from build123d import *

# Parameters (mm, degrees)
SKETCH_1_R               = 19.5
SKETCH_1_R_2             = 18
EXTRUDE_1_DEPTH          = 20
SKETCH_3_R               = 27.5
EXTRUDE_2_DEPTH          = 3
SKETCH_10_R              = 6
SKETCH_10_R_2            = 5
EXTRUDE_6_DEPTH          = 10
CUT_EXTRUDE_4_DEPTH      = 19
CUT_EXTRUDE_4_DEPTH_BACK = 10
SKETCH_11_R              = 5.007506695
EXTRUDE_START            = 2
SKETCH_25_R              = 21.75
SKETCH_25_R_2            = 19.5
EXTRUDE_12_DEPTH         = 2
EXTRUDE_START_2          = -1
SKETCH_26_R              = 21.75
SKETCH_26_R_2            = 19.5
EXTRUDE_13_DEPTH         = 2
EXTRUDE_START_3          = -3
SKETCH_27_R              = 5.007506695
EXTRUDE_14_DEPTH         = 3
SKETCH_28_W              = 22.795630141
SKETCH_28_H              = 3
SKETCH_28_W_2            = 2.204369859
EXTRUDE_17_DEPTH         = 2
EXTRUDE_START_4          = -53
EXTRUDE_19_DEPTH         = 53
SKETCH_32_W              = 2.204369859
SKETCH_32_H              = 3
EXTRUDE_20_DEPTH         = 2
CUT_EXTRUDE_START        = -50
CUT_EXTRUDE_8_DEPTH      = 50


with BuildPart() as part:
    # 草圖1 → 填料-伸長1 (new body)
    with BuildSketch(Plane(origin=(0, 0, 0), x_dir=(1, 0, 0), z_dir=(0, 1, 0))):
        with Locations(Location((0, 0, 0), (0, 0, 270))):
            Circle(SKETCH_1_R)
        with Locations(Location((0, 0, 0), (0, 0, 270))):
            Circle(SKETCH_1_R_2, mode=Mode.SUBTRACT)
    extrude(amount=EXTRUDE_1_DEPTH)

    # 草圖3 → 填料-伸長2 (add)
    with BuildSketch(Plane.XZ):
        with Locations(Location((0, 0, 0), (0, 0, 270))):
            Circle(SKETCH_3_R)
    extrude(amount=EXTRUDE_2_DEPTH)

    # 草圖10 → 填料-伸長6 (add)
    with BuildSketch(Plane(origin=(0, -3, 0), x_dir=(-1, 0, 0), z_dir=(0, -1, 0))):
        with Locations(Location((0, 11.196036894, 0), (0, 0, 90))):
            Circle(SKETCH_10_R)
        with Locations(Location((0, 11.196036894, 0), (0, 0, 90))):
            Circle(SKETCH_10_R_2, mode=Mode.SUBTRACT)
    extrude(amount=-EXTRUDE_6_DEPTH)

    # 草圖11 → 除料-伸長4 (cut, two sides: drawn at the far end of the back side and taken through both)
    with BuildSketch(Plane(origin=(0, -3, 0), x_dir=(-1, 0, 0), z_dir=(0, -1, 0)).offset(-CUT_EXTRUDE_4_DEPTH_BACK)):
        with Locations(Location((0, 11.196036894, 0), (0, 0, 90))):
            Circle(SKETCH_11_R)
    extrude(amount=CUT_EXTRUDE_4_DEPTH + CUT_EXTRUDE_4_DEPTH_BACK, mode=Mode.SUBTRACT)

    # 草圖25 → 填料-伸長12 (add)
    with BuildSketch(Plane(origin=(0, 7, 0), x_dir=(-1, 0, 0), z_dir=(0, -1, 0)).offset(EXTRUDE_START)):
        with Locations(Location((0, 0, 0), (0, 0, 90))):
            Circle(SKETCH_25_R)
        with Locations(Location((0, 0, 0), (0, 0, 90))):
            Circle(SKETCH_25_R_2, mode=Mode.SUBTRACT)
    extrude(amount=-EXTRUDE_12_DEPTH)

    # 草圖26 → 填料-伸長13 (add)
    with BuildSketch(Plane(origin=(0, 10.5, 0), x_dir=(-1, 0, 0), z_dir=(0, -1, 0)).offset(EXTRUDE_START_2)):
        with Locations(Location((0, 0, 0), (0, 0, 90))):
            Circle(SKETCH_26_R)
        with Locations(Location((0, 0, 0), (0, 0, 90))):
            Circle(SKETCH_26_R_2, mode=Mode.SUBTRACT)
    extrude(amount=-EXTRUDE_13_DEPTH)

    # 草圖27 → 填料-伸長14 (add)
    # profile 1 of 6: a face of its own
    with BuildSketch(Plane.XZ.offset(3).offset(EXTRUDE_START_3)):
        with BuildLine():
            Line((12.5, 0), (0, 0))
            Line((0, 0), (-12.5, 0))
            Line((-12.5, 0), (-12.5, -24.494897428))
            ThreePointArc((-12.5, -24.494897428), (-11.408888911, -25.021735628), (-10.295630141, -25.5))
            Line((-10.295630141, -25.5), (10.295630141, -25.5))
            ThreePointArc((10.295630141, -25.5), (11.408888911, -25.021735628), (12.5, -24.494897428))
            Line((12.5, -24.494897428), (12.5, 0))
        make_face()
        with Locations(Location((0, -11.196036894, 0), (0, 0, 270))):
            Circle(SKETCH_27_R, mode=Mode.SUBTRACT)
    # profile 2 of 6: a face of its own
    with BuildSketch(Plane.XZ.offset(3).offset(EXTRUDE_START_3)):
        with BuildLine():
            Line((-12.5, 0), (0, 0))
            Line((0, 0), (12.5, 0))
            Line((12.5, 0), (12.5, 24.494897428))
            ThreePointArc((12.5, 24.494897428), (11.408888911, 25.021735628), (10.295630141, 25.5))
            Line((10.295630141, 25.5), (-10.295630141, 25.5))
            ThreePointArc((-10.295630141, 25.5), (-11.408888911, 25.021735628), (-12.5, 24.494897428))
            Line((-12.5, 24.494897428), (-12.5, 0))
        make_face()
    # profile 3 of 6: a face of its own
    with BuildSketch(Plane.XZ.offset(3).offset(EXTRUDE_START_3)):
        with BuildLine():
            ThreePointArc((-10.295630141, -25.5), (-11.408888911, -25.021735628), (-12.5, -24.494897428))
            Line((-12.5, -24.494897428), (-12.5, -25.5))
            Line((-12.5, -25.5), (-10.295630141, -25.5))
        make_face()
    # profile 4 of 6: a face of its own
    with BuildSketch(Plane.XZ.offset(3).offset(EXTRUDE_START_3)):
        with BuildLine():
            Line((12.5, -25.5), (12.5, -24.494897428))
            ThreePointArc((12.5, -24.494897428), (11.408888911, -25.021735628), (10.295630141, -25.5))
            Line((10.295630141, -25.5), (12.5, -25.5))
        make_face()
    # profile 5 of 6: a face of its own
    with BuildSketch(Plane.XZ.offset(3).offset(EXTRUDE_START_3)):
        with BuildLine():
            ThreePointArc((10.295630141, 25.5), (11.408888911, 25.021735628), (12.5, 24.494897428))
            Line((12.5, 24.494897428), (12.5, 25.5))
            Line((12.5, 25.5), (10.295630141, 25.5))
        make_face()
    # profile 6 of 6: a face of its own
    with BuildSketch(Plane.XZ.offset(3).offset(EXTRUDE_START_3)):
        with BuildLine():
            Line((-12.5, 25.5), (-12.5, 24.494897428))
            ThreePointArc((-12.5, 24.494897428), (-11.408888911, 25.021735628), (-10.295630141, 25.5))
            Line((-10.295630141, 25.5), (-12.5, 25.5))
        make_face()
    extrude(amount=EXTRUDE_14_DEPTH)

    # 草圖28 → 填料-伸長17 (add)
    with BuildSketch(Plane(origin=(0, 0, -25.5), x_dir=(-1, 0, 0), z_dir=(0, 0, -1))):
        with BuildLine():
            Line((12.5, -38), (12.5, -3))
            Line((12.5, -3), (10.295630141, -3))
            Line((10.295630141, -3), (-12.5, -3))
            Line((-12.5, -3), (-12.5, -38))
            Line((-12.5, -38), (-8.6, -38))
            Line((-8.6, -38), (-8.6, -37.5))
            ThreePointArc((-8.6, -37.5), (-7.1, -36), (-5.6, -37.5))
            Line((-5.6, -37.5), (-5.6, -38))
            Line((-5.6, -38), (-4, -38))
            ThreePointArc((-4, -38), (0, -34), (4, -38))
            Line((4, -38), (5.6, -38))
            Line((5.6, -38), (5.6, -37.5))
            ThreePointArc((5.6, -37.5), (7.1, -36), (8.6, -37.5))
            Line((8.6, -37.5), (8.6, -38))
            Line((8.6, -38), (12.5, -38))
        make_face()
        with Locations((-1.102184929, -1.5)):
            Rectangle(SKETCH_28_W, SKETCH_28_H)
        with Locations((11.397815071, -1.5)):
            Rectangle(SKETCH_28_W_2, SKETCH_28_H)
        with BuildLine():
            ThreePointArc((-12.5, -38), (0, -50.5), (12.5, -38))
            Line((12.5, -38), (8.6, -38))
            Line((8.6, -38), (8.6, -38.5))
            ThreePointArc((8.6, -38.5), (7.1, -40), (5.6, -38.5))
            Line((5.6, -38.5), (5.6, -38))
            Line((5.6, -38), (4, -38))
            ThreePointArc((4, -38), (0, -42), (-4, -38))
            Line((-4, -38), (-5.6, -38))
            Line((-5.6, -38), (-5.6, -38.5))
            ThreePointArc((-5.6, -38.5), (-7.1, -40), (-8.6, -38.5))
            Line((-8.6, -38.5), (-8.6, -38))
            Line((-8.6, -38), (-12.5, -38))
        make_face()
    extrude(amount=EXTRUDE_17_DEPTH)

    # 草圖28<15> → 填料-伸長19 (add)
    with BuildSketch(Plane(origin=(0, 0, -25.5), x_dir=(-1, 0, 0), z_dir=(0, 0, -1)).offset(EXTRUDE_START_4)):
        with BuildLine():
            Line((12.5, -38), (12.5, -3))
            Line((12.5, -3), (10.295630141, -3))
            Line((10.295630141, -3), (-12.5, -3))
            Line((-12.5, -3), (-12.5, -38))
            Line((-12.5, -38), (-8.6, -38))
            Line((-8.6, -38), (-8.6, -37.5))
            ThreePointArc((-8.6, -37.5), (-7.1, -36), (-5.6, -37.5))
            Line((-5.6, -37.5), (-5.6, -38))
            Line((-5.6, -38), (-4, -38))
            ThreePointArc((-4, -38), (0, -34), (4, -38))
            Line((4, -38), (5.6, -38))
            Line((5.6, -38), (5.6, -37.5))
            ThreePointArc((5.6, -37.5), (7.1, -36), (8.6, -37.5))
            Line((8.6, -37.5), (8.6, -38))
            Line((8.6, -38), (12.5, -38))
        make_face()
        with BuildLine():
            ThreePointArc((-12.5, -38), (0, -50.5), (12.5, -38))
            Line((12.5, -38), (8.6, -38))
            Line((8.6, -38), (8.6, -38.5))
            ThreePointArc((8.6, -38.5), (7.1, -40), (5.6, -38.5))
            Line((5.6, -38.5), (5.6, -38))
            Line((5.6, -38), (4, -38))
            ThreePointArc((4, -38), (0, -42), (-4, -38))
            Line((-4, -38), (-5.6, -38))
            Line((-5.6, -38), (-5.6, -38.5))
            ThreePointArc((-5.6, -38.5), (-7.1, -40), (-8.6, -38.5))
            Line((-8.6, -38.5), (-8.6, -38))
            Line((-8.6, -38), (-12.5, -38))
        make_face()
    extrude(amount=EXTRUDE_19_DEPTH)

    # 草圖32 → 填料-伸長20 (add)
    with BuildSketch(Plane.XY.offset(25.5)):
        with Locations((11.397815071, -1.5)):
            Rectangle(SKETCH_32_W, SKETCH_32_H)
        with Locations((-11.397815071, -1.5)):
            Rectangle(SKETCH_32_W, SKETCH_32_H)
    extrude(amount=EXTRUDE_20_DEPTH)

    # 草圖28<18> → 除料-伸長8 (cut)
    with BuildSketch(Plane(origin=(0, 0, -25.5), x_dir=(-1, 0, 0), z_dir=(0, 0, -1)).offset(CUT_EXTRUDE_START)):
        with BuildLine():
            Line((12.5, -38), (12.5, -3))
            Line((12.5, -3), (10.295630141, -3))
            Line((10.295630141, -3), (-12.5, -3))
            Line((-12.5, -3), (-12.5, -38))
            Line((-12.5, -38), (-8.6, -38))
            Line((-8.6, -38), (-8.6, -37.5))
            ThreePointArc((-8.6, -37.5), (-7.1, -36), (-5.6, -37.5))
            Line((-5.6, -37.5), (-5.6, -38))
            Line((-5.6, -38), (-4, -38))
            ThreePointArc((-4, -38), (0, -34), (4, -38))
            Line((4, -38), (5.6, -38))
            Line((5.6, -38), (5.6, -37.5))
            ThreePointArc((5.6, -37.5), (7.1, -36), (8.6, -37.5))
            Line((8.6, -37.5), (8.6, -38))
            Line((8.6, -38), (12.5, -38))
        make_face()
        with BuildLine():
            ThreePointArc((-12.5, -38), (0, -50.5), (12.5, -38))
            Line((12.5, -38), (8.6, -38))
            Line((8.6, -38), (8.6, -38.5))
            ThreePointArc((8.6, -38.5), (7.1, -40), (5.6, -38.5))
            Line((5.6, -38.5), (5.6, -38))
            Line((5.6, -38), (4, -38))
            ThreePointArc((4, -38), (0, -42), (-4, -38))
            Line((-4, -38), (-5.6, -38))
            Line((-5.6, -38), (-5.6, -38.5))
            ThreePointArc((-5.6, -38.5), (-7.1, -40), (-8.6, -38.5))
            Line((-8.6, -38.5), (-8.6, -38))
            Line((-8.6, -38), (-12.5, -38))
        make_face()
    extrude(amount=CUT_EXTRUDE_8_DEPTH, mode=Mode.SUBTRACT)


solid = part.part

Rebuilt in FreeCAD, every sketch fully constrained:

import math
import FreeCAD as App
import Part
import Sketcher
from FreeCAD import Vector
Q = App.Units.Quantity

doc = App.newDocument("Part")
body = doc.addObject("PartDesign::Body", "Body")

# Sketch on XZ plane
sketch1 = body.newObject("Sketcher::SketchObject", "Sketch")
sketch1.AttachmentSupport = (doc.getObject("XZ_Plane"), [""])
sketch1.MapMode = "FlatFace"
sketch1.addGeometry([
    Part.Circle(Vector(0, 0, 0), Vector(0, 0, 1), 19.5),
    Part.Circle(Vector(0, 0, 0), Vector(0, 0, 1), 18),
], False)
sketch1.addConstraint([
    Sketcher.Constraint("Coincident", 0, 3, -1, 1),
    Sketcher.Constraint("Coincident", 1, 3, -1, 1),
    Sketcher.Constraint("Diameter", 0, Q("39 mm")),
    Sketcher.Constraint("Diameter", 1, Q("36 mm")),
])
pad1 = body.newObject("PartDesign::Pad", "Pad")
pad1.Profile = sketch1
pad1.Length = 20
pad1.Reversed = True

# Sketch on XZ plane
sketch2 = body.newObject("Sketcher::SketchObject", "Sketch001")
sketch2.AttachmentSupport = (doc.getObject("XZ_Plane"), [""])
sketch2.MapMode = "FlatFace"
sketch2.addGeometry(Part.Circle(Vector(0, 0, 0), Vector(0, 0, 1), 27.5), False)
sketch2.addConstraint([
    Sketcher.Constraint("Coincident", 0, 3, -1, 1),
    Sketcher.Constraint("Diameter", 0, Q("55 mm")),
])
pad2 = body.newObject("PartDesign::Pad", "Pad001")
pad2.Profile = sketch2
pad2.Length = 3

# Sketch on XZ plane
sketch3 = body.newObject("Sketcher::SketchObject", "Sketch002")
sketch3.AttachmentSupport = (doc.getObject("XZ_Plane"), [""])
sketch3.MapMode = "FlatFace"
sketch3.AttachmentOffset = App.Placement(Vector(0, 0, 3), App.Rotation())
sketch3.addGeometry([
    Part.Circle(Vector(0, -11.196037, 0), Vector(0, 0, 1), 6),
    Part.Circle(Vector(0, -11.196037, 0), Vector(0, 0, 1), 5),
], False)
sketch3.addConstraint([
    Sketcher.Constraint("Coincident", 1, 3, 0, 3),
    Sketcher.Constraint("PointOnObject", 0, 3, -2),
    Sketcher.Constraint("Diameter", 0, Q("12 mm")),
    Sketcher.Constraint("Diameter", 1, Q("10 mm")),
    Sketcher.Constraint("DistanceY", 0, 3, -1, 1, Q("11.196037 mm")),
])
pad3 = body.newObject("PartDesign::Pad", "Pad002")
pad3.Profile = sketch3
pad3.Length = 10
pad3.Reversed = True

# Sketch on XZ plane
sketch4 = body.newObject("Sketcher::SketchObject", "Sketch003")
sketch4.AttachmentSupport = (doc.getObject("XZ_Plane"), [""])
sketch4.MapMode = "FlatFace"
sketch4.AttachmentOffset = App.Placement(Vector(0, 0, 3), App.Rotation())
sketch4.addGeometry(Part.Circle(Vector(0, -11.196037, 0), Vector(0, 0, 1), 5.007507), False)
sketch4.addConstraint([
    Sketcher.Constraint("PointOnObject", 0, 3, -2),
    Sketcher.Constraint("Diameter", 0, Q("10.015013 mm")),
    Sketcher.Constraint("DistanceY", 0, 3, -1, 1, Q("11.196037 mm")),
])
pocket1 = body.newObject("PartDesign::Pocket", "Pocket")
pocket1.Profile = sketch4
pocket1.Type = "ThroughAll"
pocket1.Midplane = True

# Sketch on XZ plane
sketch5 = body.newObject("Sketcher::SketchObject", "Sketch004")
sketch5.AttachmentSupport = (doc.getObject("XZ_Plane"), [""])
sketch5.MapMode = "FlatFace"
sketch5.AttachmentOffset = App.Placement(Vector(0, 0, -5), App.Rotation())
sketch5.addGeometry([
    Part.Circle(Vector(0, 0, 0), Vector(0, 0, 1), 21.75),
    Part.Circle(Vector(0, 0, 0), Vector(0, 0, 1), 19.5),
], False)
sketch5.addConstraint([
    Sketcher.Constraint("Coincident", 0, 3, -1, 1),
    Sketcher.Constraint("Coincident", 1, 3, -1, 1),
    Sketcher.Constraint("Diameter", 1, Q("39 mm")),
    Sketcher.Constraint("Diameter", 0, Q("43.5 mm")),
])
pad4 = body.newObject("PartDesign::Pad", "Pad003")
pad4.Profile = sketch5
pad4.Length = 2
pad4.Reversed = True

# Sketch on XZ plane
sketch6 = body.newObject("Sketcher::SketchObject", "Sketch005")
sketch6.AttachmentSupport = (doc.getObject("XZ_Plane"), [""])
sketch6.MapMode = "FlatFace"
sketch6.AttachmentOffset = App.Placement(Vector(0, 0, -11.5), App.Rotation())
sketch6.addGeometry([
    Part.Circle(Vector(0, 0, 0), Vector(0, 0, 1), 21.75),
    Part.Circle(Vector(0, 0, 0), Vector(0, 0, 1), 19.5),
], False)
sketch6.addConstraint([
    Sketcher.Constraint("Coincident", 0, 3, -1, 1),
    Sketcher.Constraint("Coincident", 1, 3, -1, 1),
    Sketcher.Constraint("Diameter", 1, Q("39 mm")),
    Sketcher.Constraint("Diameter", 0, Q("43.5 mm")),
])
pad5 = body.newObject("PartDesign::Pad", "Pad004")
pad5.Profile = sketch6
pad5.Length = 2
pad5.Reversed = True

# Sketch on XZ plane
sketch7 = body.newObject("Sketcher::SketchObject", "Sketch006")
sketch7.AttachmentSupport = (doc.getObject("XZ_Plane"), [""])
sketch7.MapMode = "FlatFace"
sketch7.addGeometry([
    Part.LineSegment(Vector(12.5, 25.5, 0), Vector(-12.5, 25.5, 0)),  # 0
    Part.LineSegment(Vector(-12.5, 25.5, 0), Vector(-12.5, -25.5, 0)),  # 1
    Part.LineSegment(Vector(-12.5, -25.5, 0), Vector(12.5, -25.5, 0)),  # 2
    Part.LineSegment(Vector(12.5, -25.5, 0), Vector(12.5, 25.5, 0)),  # 3
    Part.Circle(Vector(0, -11.196037, 0), Vector(0, 0, 1), 5.007507),  # 4
], False)
sketch7.addConstraint([
    Sketcher.Constraint("Coincident", 0, 2, 1, 1),
    Sketcher.Constraint("Coincident", 1, 2, 2, 1),
    Sketcher.Constraint("Coincident", 2, 2, 3, 1),
    Sketcher.Constraint("Coincident", 3, 2, 0, 1),
    Sketcher.Constraint("Horizontal", 0),
    Sketcher.Constraint("Vertical", 1),
    Sketcher.Constraint("Horizontal", 2),
    Sketcher.Constraint("Vertical", 3),
    Sketcher.Constraint("Symmetric", 0, 2, 2, 2, -1, 1),
    Sketcher.Constraint("PointOnObject", 4, 3, -2),
    Sketcher.Constraint("DistanceX", 0, 2, 0, 1, Q("25 mm")),
    Sketcher.Constraint("DistanceY", 1, 2, 1, 1, Q("51 mm")),
    Sketcher.Constraint("Diameter", 4, Q("10.015013 mm")),
    Sketcher.Constraint("DistanceY", 4, 3, -1, 1, Q("11.196037 mm")),
])
pad6 = body.newObject("PartDesign::Pad", "Pad005")
pad6.Profile = sketch7
pad6.Length = 3

# Sketch on XY plane
sketch8 = body.newObject("Sketcher::SketchObject", "Sketch007")
sketch8.AttachmentSupport = (doc.getObject("XY_Plane"), [""])
sketch8.MapMode = "FlatFace"
sketch8.AttachmentOffset = App.Placement(Vector(0, 0, -25.5), App.Rotation())
sketch8.addGeometry([
    Part.LineSegment(Vector(-12.5, -38, 0), Vector(-12.5, 0, 0)),  # 0
    Part.LineSegment(Vector(-12.5, 0, 0), Vector(12.5, 0, 0)),  # 1
    Part.LineSegment(Vector(12.5, 0, 0), Vector(12.5, -3, 0)),  # 2
    Part.LineSegment(Vector(12.5, -3, 0), Vector(12.5, -38, 0)),  # 3
    Part.ArcOfCircle(Part.Circle(Vector(0, -38, 0), Vector(0, 0, 1), 12.5), math.radians(180), math.radians(360)),  # 4
    Part.ArcOfCircle(Part.Circle(Vector(7.1, -37.5, 0), Vector(0, 0, 1), 1.5), math.radians(0), math.radians(180)),  # 5
    Part.LineSegment(Vector(5.6, -37.5, 0), Vector(5.6, -38.5, 0)),  # 6
    Part.ArcOfCircle(Part.Circle(Vector(7.1, -38.5, 0), Vector(0, 0, 1), 1.5), math.radians(180), math.radians(360)),  # 7
    Part.LineSegment(Vector(8.6, -38.5, 0), Vector(8.6, -37.5, 0)),  # 8
    Part.Circle(Vector(0, -38, 0), Vector(0, 0, 1), 4),  # 9
    Part.ArcOfCircle(Part.Circle(Vector(-7.1, -37.5, 0), Vector(0, 0, 1), 1.5), math.radians(0), math.radians(180)),  # 10
    Part.LineSegment(Vector(-8.6, -37.5, 0), Vector(-8.6, -38.5, 0)),  # 11
    Part.ArcOfCircle(Part.Circle(Vector(-7.1, -38.5, 0), Vector(0, 0, 1), 1.5), math.radians(180), math.radians(360)),  # 12
    Part.LineSegment(Vector(-5.6, -38.5, 0), Vector(-5.6, -37.5, 0)),  # 13
], False)
sketch8.addConstraint([
    Sketcher.Constraint("Coincident", 0, 2, 1, 1),
    Sketcher.Constraint("Coincident", 1, 2, 2, 1),
    Sketcher.Constraint("Coincident", 2, 2, 3, 1),
    Sketcher.Constraint("Tangent", 3, 2, 4, 2),
    Sketcher.Constraint("Tangent", 4, 1, 0, 1),
    Sketcher.Constraint("Tangent", 5, 2, 6, 1),
    Sketcher.Constraint("Tangent", 6, 2, 7, 1),
    Sketcher.Constraint("Tangent", 7, 2, 8, 1),
    Sketcher.Constraint("Tangent", 8, 2, 5, 1),
    Sketcher.Constraint("Tangent", 10, 2, 11, 1),
    Sketcher.Constraint("Tangent", 11, 2, 12, 1),
    Sketcher.Constraint("Tangent", 12, 2, 13, 1),
    Sketcher.Constraint("Tangent", 13, 2, 10, 1),
    Sketcher.Constraint("Vertical", 0),
    Sketcher.Constraint("Horizontal", 1),
    Sketcher.Constraint("Vertical", 2),
    Sketcher.Constraint("Vertical", 3),
    Sketcher.Constraint("Vertical", 6),
    Sketcher.Constraint("Vertical", 8),
    Sketcher.Constraint("Vertical", 11),
    Sketcher.Constraint("Vertical", 13),
    Sketcher.Constraint("Coincident", 9, 3, 4, 3),
    Sketcher.Constraint("Equal", 7, 10),
    Sketcher.Constraint("Symmetric", 0, 2, 1, 2, -1, 1),
    Sketcher.Constraint("Symmetric", 5, 3, 10, 3, -2),
    Sketcher.Constraint("Horizontal", 7, 3, 12, 3),
    Sketcher.Constraint("Diameter", 9, Q("8 mm")),
    Sketcher.Constraint("Radius", 4, Q("12.5 mm")),
    Sketcher.Constraint("Radius", 5, Q("1.5 mm")),
    Sketcher.Constraint("DistanceY", 0, 1, 0, 2, Q("38 mm")),
    Sketcher.Constraint("DistanceY", 2, 2, 2, 1, Q("3 mm")),
    Sketcher.Constraint("DistanceY", 6, 2, 6, 1, Q("1 mm")),
    Sketcher.Constraint("DistanceX", -1, 1, 5, 3, Q("7.1 mm")),
    Sketcher.Constraint("DistanceY", 5, 3, -1, 1, Q("37.5 mm")),
])
pad7 = body.newObject("PartDesign::Pad", "Pad006")
pad7.Profile = sketch8
pad7.Length = 2
pad7.Reversed = True

# Sketch on XY plane
sketch9 = body.newObject("Sketcher::SketchObject", "Sketch008")
sketch9.AttachmentSupport = (doc.getObject("XY_Plane"), [""])
sketch9.MapMode = "FlatFace"
sketch9.AttachmentOffset = App.Placement(Vector(0, 0, 27.5), App.Rotation())
sketch9.addGeometry([
    Part.LineSegment(Vector(-12.5, -38, 0), Vector(-12.5, -3, 0)),  # 0
    Part.LineSegment(Vector(-12.5, -3, 0), Vector(12.5, -3, 0)),  # 1
    Part.LineSegment(Vector(12.5, -3, 0), Vector(12.5, -38, 0)),  # 2
    Part.ArcOfCircle(Part.Circle(Vector(0, -38, 0), Vector(0, 0, 1), 12.5), math.radians(180), math.radians(360)),  # 3
    Part.ArcOfCircle(Part.Circle(Vector(7.1, -37.5, 0), Vector(0, 0, 1), 1.5), math.radians(0), math.radians(180)),  # 4
    Part.LineSegment(Vector(5.6, -37.5, 0), Vector(5.6, -38.5, 0)),  # 5
    Part.ArcOfCircle(Part.Circle(Vector(7.1, -38.5, 0), Vector(0, 0, 1), 1.5), math.radians(180), math.radians(360)),  # 6
    Part.LineSegment(Vector(8.6, -38.5, 0), Vector(8.6, -37.5, 0)),  # 7
    Part.Circle(Vector(0, -38, 0), Vector(0, 0, 1), 4),  # 8
    Part.ArcOfCircle(Part.Circle(Vector(-7.1, -37.5, 0), Vector(0, 0, 1), 1.5), math.radians(0), math.radians(180)),  # 9
    Part.LineSegment(Vector(-8.6, -37.5, 0), Vector(-8.6, -38.5, 0)),  # 10
    Part.ArcOfCircle(Part.Circle(Vector(-7.1, -38.5, 0), Vector(0, 0, 1), 1.5), math.radians(180), math.radians(360)),  # 11
    Part.LineSegment(Vector(-5.6, -38.5, 0), Vector(-5.6, -37.5, 0)),  # 12
], False)
sketch9.addConstraint([
    Sketcher.Constraint("Coincident", 0, 2, 1, 1),
    Sketcher.Constraint("Coincident", 1, 2, 2, 1),
    Sketcher.Constraint("Tangent", 2, 2, 3, 2),
    Sketcher.Constraint("Tangent", 3, 1, 0, 1),
    Sketcher.Constraint("Tangent", 4, 2, 5, 1),
    Sketcher.Constraint("Tangent", 5, 2, 6, 1),
    Sketcher.Constraint("Tangent", 6, 2, 7, 1),
    Sketcher.Constraint("Tangent", 7, 2, 4, 1),
    Sketcher.Constraint("Tangent", 9, 2, 10, 1),
    Sketcher.Constraint("Tangent", 10, 2, 11, 1),
    Sketcher.Constraint("Tangent", 11, 2, 12, 1),
    Sketcher.Constraint("Tangent", 12, 2, 9, 1),
    Sketcher.Constraint("Vertical", 0),
    Sketcher.Constraint("Horizontal", 1),
    Sketcher.Constraint("Vertical", 2),
    Sketcher.Constraint("Vertical", 5),
    Sketcher.Constraint("Vertical", 7),
    Sketcher.Constraint("Vertical", 10),
    Sketcher.Constraint("Vertical", 12),
    Sketcher.Constraint("Coincident", 8, 3, 3, 3),
    Sketcher.Constraint("Equal", 6, 9),
    Sketcher.Constraint("Symmetric", 4, 3, 9, 3, -2),
    Sketcher.Constraint("PointOnObject", 3, 3, -2),
    Sketcher.Constraint("Horizontal", 6, 3, 11, 3),
    Sketcher.Constraint("Diameter", 8, Q("8 mm")),
    Sketcher.Constraint("Radius", 3, Q("12.5 mm")),
    Sketcher.Constraint("Radius", 4, Q("1.5 mm")),
    Sketcher.Constraint("DistanceY", 0, 1, 0, 2, Q("35 mm")),
    Sketcher.Constraint("DistanceY", 5, 2, 5, 1, Q("1 mm")),
    Sketcher.Constraint("DistanceY", 3, 3, -1, 1, Q("38 mm")),
    Sketcher.Constraint("DistanceX", -1, 1, 4, 3, Q("7.1 mm")),
    Sketcher.Constraint("DistanceY", 4, 3, -1, 1, Q("37.5 mm")),
])
pad8 = body.newObject("PartDesign::Pad", "Pad007")
pad8.Profile = sketch9
pad8.Length = 53
pad8.Reversed = True

# Sketch on XY plane
sketch10 = body.newObject("Sketcher::SketchObject", "Sketch009")
sketch10.AttachmentSupport = (doc.getObject("XY_Plane"), [""])
sketch10.MapMode = "FlatFace"
sketch10.AttachmentOffset = App.Placement(Vector(0, 0, 25.5), App.Rotation())
sketch10.addGeometry([
    Part.LineSegment(Vector(10.29563, 0, 0), Vector(10.29563, -3, 0)),  # 0
    Part.LineSegment(Vector(10.29563, -3, 0), Vector(12.5, -3, 0)),  # 1
    Part.LineSegment(Vector(12.5, -3, 0), Vector(12.5, 0, 0)),  # 2
    Part.LineSegment(Vector(12.5, 0, 0), Vector(10.29563, 0, 0)),  # 3
    Part.LineSegment(Vector(-12.5, 0, 0), Vector(-12.5, -3, 0)),  # 4
    Part.LineSegment(Vector(-12.5, -3, 0), Vector(-10.29563, -3, 0)),  # 5
    Part.LineSegment(Vector(-10.29563, -3, 0), Vector(-10.29563, 0, 0)),  # 6
    Part.LineSegment(Vector(-10.29563, 0, 0), Vector(-12.5, 0, 0)),  # 7
], False)
sketch10.addConstraint([
    Sketcher.Constraint("Coincident", 0, 2, 1, 1),
    Sketcher.Constraint("Coincident", 1, 2, 2, 1),
    Sketcher.Constraint("Coincident", 2, 2, 3, 1),
    Sketcher.Constraint("Coincident", 3, 2, 0, 1),
    Sketcher.Constraint("Coincident", 4, 2, 5, 1),
    Sketcher.Constraint("Coincident", 5, 2, 6, 1),
    Sketcher.Constraint("Coincident", 6, 2, 7, 1),
    Sketcher.Constraint("Coincident", 7, 2, 4, 1),
    Sketcher.Constraint("Vertical", 0),
    Sketcher.Constraint("Horizontal", 1),
    Sketcher.Constraint("Vertical", 2),
    Sketcher.Constraint("Horizontal", 3),
    Sketcher.Constraint("Vertical", 4),
    Sketcher.Constraint("Horizontal", 5),
    Sketcher.Constraint("Vertical", 6),
    Sketcher.Constraint("Horizontal", 7),
    Sketcher.Constraint("Symmetric", 3, 2, 6, 2, -1, 1),
    Sketcher.Constraint("Symmetric", 1, 2, 4, 2, -2),
    Sketcher.Constraint("PointOnObject", 2, 2, -1),
    Sketcher.Constraint("DistanceY", 0, 2, 0, 1, Q("3 mm")),
    Sketcher.Constraint("DistanceX", 4, 2, 1, 2, Q("25 mm")),
    Sketcher.Constraint("DistanceX", 1, 1, 1, 2, Q("2.20437 mm")),
])
pad9 = body.newObject("PartDesign::Pad", "Pad008")
pad9.Profile = sketch10
pad9.Length = 2

# Sketch on XY plane
sketch11 = body.newObject("Sketcher::SketchObject", "Sketch010")
sketch11.AttachmentSupport = (doc.getObject("XY_Plane"), [""])
sketch11.MapMode = "FlatFace"
sketch11.AttachmentOffset = App.Placement(Vector(0, 0, 24.5), App.Rotation())
sketch11.addGeometry([
    Part.LineSegment(Vector(-12.5, -38, 0), Vector(-12.5, -3, 0)),  # 0
    Part.LineSegment(Vector(-12.5, -3, 0), Vector(12.5, -3, 0)),  # 1
    Part.LineSegment(Vector(12.5, -3, 0), Vector(12.5, -38, 0)),  # 2
    Part.ArcOfCircle(Part.Circle(Vector(0, -38, 0), Vector(0, 0, 1), 12.5), math.radians(180), math.radians(360)),  # 3
    Part.ArcOfCircle(Part.Circle(Vector(7.1, -37.5, 0), Vector(0, 0, 1), 1.5), math.radians(0), math.radians(180)),  # 4
    Part.LineSegment(Vector(5.6, -37.5, 0), Vector(5.6, -38.5, 0)),  # 5
    Part.ArcOfCircle(Part.Circle(Vector(7.1, -38.5, 0), Vector(0, 0, 1), 1.5), math.radians(180), math.radians(360)),  # 6
    Part.LineSegment(Vector(8.6, -38.5, 0), Vector(8.6, -37.5, 0)),  # 7
    Part.Circle(Vector(0, -38, 0), Vector(0, 0, 1), 4),  # 8
    Part.ArcOfCircle(Part.Circle(Vector(-7.1, -37.5, 0), Vector(0, 0, 1), 1.5), math.radians(0), math.radians(180)),  # 9
    Part.LineSegment(Vector(-8.6, -37.5, 0), Vector(-8.6, -38.5, 0)),  # 10
    Part.ArcOfCircle(Part.Circle(Vector(-7.1, -38.5, 0), Vector(0, 0, 1), 1.5), math.radians(180), math.radians(360)),  # 11
    Part.LineSegment(Vector(-5.6, -38.5, 0), Vector(-5.6, -37.5, 0)),  # 12
], False)
sketch11.addConstraint([
    Sketcher.Constraint("Coincident", 0, 2, 1, 1),
    Sketcher.Constraint("Coincident", 1, 2, 2, 1),
    Sketcher.Constraint("Tangent", 2, 2, 3, 2),
    Sketcher.Constraint("Tangent", 3, 1, 0, 1),
    Sketcher.Constraint("Tangent", 4, 2, 5, 1),
    Sketcher.Constraint("Tangent", 5, 2, 6, 1),
    Sketcher.Constraint("Tangent", 6, 2, 7, 1),
    Sketcher.Constraint("Tangent", 7, 2, 4, 1),
    Sketcher.Constraint("Tangent", 9, 2, 10, 1),
    Sketcher.Constraint("Tangent", 10, 2, 11, 1),
    Sketcher.Constraint("Tangent", 11, 2, 12, 1),
    Sketcher.Constraint("Tangent", 12, 2, 9, 1),
    Sketcher.Constraint("Vertical", 0),
    Sketcher.Constraint("Horizontal", 1),
    Sketcher.Constraint("Vertical", 2),
    Sketcher.Constraint("Vertical", 5),
    Sketcher.Constraint("Vertical", 7),
    Sketcher.Constraint("Vertical", 10),
    Sketcher.Constraint("Vertical", 12),
    Sketcher.Constraint("Coincident", 8, 3, 3, 3),
    Sketcher.Constraint("Equal", 6, 9),
    Sketcher.Constraint("Symmetric", 4, 3, 9, 3, -2),
    Sketcher.Constraint("PointOnObject", 3, 3, -2),
    Sketcher.Constraint("Horizontal", 6, 3, 11, 3),
    Sketcher.Constraint("Diameter", 8, Q("8 mm")),
    Sketcher.Constraint("Radius", 3, Q("12.5 mm")),
    Sketcher.Constraint("Radius", 4, Q("1.5 mm")),
    Sketcher.Constraint("DistanceY", 0, 1, 0, 2, Q("35 mm")),
    Sketcher.Constraint("DistanceY", 5, 2, 5, 1, Q("1 mm")),
    Sketcher.Constraint("DistanceY", 3, 3, -1, 1, Q("38 mm")),
    Sketcher.Constraint("DistanceX", -1, 1, 4, 3, Q("7.1 mm")),
    Sketcher.Constraint("DistanceY", 4, 3, -1, 1, Q("37.5 mm")),
])
pocket2 = body.newObject("PartDesign::Pocket", "Pocket001")
pocket2.Profile = sketch11
pocket2.Length = 50

doc.recompute()
